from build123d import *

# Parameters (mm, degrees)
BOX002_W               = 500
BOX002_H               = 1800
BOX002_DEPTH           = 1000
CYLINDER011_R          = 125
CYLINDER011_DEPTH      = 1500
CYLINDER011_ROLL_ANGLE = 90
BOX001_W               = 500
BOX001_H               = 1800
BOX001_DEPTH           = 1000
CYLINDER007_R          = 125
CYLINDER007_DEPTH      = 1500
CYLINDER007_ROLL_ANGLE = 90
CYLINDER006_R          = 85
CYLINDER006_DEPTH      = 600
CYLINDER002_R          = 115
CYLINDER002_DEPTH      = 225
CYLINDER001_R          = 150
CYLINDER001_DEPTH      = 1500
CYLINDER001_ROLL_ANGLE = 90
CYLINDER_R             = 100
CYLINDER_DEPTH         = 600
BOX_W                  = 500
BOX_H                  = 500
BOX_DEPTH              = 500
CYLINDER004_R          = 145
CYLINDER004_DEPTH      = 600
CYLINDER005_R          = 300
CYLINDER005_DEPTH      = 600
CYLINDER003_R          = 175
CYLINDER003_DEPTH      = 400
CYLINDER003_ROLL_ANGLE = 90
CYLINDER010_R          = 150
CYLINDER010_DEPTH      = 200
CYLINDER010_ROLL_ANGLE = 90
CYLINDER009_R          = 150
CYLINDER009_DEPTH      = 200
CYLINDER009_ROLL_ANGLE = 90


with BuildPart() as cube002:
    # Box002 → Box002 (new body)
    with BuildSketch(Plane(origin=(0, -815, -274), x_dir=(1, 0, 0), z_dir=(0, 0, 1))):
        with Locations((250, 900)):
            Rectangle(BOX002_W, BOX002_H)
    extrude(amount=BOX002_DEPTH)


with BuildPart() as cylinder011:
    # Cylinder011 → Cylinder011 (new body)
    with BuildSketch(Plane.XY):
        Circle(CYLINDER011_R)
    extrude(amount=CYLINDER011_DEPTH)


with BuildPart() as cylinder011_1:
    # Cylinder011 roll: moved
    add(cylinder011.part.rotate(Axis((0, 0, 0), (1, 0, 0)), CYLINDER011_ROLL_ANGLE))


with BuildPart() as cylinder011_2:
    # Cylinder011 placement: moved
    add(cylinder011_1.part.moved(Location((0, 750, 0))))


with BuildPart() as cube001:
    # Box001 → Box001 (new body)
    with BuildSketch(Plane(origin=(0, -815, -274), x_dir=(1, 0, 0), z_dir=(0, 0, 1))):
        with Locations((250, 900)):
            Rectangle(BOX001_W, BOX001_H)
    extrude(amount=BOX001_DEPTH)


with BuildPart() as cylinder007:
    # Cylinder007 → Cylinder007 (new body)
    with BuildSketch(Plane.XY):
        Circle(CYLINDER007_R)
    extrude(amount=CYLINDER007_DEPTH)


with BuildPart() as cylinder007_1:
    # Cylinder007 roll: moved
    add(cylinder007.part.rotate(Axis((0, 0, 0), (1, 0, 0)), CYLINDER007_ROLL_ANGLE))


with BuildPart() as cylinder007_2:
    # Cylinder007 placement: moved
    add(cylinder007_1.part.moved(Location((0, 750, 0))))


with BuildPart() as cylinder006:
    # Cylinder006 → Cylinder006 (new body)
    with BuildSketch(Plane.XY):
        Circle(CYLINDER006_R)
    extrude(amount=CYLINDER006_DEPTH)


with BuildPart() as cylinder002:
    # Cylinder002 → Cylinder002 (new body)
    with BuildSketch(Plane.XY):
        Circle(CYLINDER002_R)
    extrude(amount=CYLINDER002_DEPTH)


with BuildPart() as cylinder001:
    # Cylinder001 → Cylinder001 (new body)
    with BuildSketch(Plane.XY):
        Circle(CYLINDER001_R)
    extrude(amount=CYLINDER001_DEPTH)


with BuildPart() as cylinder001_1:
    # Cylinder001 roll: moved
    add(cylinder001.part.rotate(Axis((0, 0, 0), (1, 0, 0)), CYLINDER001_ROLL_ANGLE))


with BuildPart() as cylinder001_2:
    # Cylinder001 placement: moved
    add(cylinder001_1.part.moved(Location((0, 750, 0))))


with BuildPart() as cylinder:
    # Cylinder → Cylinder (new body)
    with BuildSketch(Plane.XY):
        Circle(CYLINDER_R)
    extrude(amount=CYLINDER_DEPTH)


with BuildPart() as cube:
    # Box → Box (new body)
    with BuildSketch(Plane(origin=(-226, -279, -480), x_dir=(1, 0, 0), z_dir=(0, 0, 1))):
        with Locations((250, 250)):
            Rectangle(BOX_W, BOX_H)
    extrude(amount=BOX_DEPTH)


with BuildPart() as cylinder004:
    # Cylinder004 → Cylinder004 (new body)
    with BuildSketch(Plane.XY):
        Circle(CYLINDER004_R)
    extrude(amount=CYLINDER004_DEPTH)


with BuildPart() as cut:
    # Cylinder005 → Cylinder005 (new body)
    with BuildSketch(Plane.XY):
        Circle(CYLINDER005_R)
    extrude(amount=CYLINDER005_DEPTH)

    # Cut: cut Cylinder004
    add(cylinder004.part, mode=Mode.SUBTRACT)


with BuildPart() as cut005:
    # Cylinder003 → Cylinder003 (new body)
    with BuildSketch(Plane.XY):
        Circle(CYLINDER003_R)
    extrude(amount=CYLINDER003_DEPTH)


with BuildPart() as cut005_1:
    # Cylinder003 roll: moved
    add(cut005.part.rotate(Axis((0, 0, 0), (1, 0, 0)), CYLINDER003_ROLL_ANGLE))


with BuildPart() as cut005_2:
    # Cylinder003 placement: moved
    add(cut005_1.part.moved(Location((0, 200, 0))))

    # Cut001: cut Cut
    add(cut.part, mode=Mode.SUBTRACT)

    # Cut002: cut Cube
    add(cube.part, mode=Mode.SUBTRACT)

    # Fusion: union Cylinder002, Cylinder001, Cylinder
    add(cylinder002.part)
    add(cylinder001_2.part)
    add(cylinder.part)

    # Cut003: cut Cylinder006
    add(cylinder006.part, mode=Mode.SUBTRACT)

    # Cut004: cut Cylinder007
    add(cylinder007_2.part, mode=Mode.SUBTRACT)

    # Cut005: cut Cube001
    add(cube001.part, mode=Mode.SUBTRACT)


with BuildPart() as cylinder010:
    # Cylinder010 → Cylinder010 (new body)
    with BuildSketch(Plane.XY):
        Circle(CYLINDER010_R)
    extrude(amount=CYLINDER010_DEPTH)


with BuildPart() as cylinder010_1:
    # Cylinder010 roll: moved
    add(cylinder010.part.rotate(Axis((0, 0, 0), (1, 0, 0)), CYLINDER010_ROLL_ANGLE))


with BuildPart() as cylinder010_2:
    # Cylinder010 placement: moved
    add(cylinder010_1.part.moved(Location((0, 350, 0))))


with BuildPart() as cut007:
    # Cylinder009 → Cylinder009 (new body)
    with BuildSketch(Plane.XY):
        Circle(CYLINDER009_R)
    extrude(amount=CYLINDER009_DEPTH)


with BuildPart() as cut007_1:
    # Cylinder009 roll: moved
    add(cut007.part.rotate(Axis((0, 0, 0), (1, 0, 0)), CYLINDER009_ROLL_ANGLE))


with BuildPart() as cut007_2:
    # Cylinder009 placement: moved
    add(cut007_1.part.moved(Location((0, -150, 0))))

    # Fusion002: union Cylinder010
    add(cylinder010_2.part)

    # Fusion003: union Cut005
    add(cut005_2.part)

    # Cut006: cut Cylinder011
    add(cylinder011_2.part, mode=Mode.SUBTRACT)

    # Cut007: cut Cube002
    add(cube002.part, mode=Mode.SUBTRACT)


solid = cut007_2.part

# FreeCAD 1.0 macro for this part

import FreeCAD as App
import Part
import Sketcher
from FreeCAD import Vector


def add_polygon(sketch, points):
    """Adds a closed chain of lines whose ends are joined by coincident constraints."""
    first, n = sketch.GeometryCount, len(points)
    for a, b in zip(points, points[1:] + points[:1]):
        sketch.addGeometry(Part.LineSegment(App.Vector(*a, 0), App.Vector(*b, 0)), False)
    for i in range(n):
        sketch.addConstraint(Sketcher.Constraint("Coincident", first + i, 2, first + (i + 1) % n, 1))

doc = App.newDocument("Part")
params = doc.addObject("Spreadsheet::Sheet", "Params")
for row, (alias, value) in enumerate([
    ("sketch1_width", "500 mm"),
    ("sketch1_height", "1800 mm"),
    ("pad1_length", "1000 mm"),
    ("sketch2_diameter", "250 mm"),
    ("pad2_length", "1500 mm"),
    ("sketch3_width", "500 mm"),
    ("sketch3_height", "1800 mm"),
    ("pad3_length", "1000 mm"),
    ("sketch4_diameter", "250 mm"),
    ("pad4_length", "1500 mm"),
    ("sketch5_diameter", "170 mm"),
    ("pad5_length", "600 mm"),
    ("sketch6_diameter", "230 mm"),
    ("pad6_length", "225 mm"),
    ("sketch7_diameter", "300 mm"),
    ("pad7_length", "1500 mm"),
    ("sketch8_diameter", "200 mm"),
    ("pad8_length", "600 mm"),
    ("sketch9_width", "500 mm"),
    ("pad9_length", "500 mm"),
    ("sketch10_diameter", "290 mm"),
    ("pad10_length", "600 mm"),
    ("sketch11_diameter", "600 mm"),
    ("pad11_length", "600 mm"),
    ("sketch12_diameter", "350 mm"),
    ("pad12_length", "400 mm"),
    ("sketch13_diameter", "300 mm"),
    ("pad13_length", "200 mm"),
    ("sketch14_diameter", "300 mm"),
    ("pad14_length", "200 mm"),
], start=1):
    params.set(f"A{row}", alias)
    params.set(f"B{row}", "=" + value)
    params.setAlias(f"B{row}", alias)

body = doc.addObject("PartDesign::Body", "Body")

# Sketch on XY plane
sketch1 = doc.addObject("Sketcher::SketchObject", "Sketch")
body.addObject(sketch1)
sketch1.AttachmentSupport = (doc.XY_Plane, [""])
sketch1.MapMode = "FlatFace"
sketch1.AttachmentOffset = App.Placement(Vector(0, 0, -274), App.Rotation())
add_polygon(sketch1, [(0, 985), (0, -815), (500, -815), (500, 985)])  # lines 0-3
sketch1.addConstraint([
    Sketcher.Constraint("Vertical", 0),
    Sketcher.Constraint("Horizontal", 1),
    Sketcher.Constraint("Vertical", 2),
    Sketcher.Constraint("Horizontal", 3),
    Sketcher.Constraint("PointOnObject", 0, 2, -2),
    Sketcher.Constraint("DistanceX", 1, 1, 1, 2, 500.0),
    Sketcher.Constraint("DistanceY", 0, 2, 0, 1, 1800.0),
    Sketcher.Constraint("DistanceY", 0, 2, -1, 1, 815.0),
])
sketch1.setExpression("Constraints[9]", "Params.sketch1_width")
sketch1.setExpression("Constraints[10]", "Params.sketch1_height")
pad1 = doc.addObject("PartDesign::Pad", "Pad")
body.addObject(pad1)
pad1.Profile = sketch1
pad1.setExpression("Length", "Params.pad1_length")
body2 = doc.addObject("PartDesign::Body", "Body001")

# Sketch on XY plane
sketch2 = doc.addObject("Sketcher::SketchObject", "Sketch001")
body2.addObject(sketch2)
sketch2.AttachmentSupport = (doc.getObject("XY_Plane001"), [""])
sketch2.MapMode = "FlatFace"
sketch2.addGeometry(Part.Circle(Vector(0, 0, 0), Vector(0, 0, 1), 125), False)
sketch2.addConstraint([
    Sketcher.Constraint("Coincident", 0, 3, -1, 1),
    Sketcher.Constraint("Diameter", 0, 250.0),
])
sketch2.setExpression("Constraints[1]", "Params.sketch2_diameter")
pad2 = doc.addObject("PartDesign::Pad", "Pad001")
body2.addObject(pad2)
pad2.Profile = sketch2
pad2.setExpression("Length", "Params.pad2_length")
body3 = doc.addObject("PartDesign::Body", "Body002")
doc.recompute()

body2.Placement = App.Placement(Vector(0, 0, 0), App.Rotation(Vector(1, 0, 0), 90))
boolean = doc.addObject("PartDesign::Boolean", "Boolean")
body3.addObject(boolean)
boolean.Type = "Fuse"
boolean.addObjects([body2])
body4 = doc.addObject("PartDesign::Body", "Body003")
doc.recompute()

body3.Placement = App.Placement(Vector(0, 750, 0), App.Rotation(Vector(0, 0, 1), 0))
boolean2 = doc.addObject("PartDesign::Boolean", "Boolean001")
body4.addObject(boolean2)
boolean2.Type = "Fuse"
boolean2.addObjects([body3])
body5 = doc.addObject("PartDesign::Body", "Body004")

# Sketch on XY plane
sketch3 = doc.addObject("Sketcher::SketchObject", "Sketch002")
body5.addObject(sketch3)
sketch3.AttachmentSupport = (doc.getObject("XY_Plane004"), [""])
sketch3.MapMode = "FlatFace"
sketch3.AttachmentOffset = App.Placement(Vector(0, 0, -274), App.Rotation())
add_polygon(sketch3, [(0, 985), (0, -815), (500, -815), (500, 985)])  # lines 0-3
sketch3.addConstraint([
    Sketcher.Constraint("Vertical", 0),
    Sketcher.Constraint("Horizontal", 1),
    Sketcher.Constraint("Vertical", 2),
    Sketcher.Constraint("Horizontal", 3),
    Sketcher.Constraint("PointOnObject", 0, 2, -2),
    Sketcher.Constraint("DistanceX", 1, 1, 1, 2, 500.0),
    Sketcher.Constraint("DistanceY", 0, 2, 0, 1, 1800.0),
    Sketcher.Constraint("DistanceY", 0, 2, -1, 1, 815.0),
])
sketch3.setExpression("Constraints[9]", "Params.sketch3_width")
sketch3.setExpression("Constraints[10]", "Params.sketch3_height")
pad3 = doc.addObject("PartDesign::Pad", "Pad002")
body5.addObject(pad3)
pad3.Profile = sketch3
pad3.setExpression("Length", "Params.pad3_length")
body6 = doc.addObject("PartDesign::Body", "Body005")

# Sketch on XY plane
sketch4 = doc.addObject("Sketcher::SketchObject", "Sketch003")
body6.addObject(sketch4)
sketch4.AttachmentSupport = (doc.getObject("XY_Plane005"), [""])
sketch4.MapMode = "FlatFace"
sketch4.addGeometry(Part.Circle(Vector(0, 0, 0), Vector(0, 0, 1), 125), False)
sketch4.addConstraint([
    Sketcher.Constraint("Coincident", 0, 3, -1, 1),
    Sketcher.Constraint("Diameter", 0, 250.0),
])
sketch4.setExpression("Constraints[1]", "Params.sketch4_diameter")
pad4 = doc.addObject("PartDesign::Pad", "Pad003")
body6.addObject(pad4)
pad4.Profile = sketch4
pad4.setExpression("Length", "Params.pad4_length")
body7 = doc.addObject("PartDesign::Body", "Body006")
doc.recompute()

body6.Placement = App.Placement(Vector(0, 0, 0), App.Rotation(Vector(1, 0, 0), 90))
boolean3 = doc.addObject("PartDesign::Boolean", "Boolean002")
body7.addObject(boolean3)
boolean3.Type = "Fuse"
boolean3.addObjects([body6])
body8 = doc.addObject("PartDesign::Body", "Body007")
doc.recompute()

body7.Placement = App.Placement(Vector(0, 750, 0), App.Rotation(Vector(0, 0, 1), 0))
boolean4 = doc.addObject("PartDesign::Boolean", "Boolean003")
body8.addObject(boolean4)
boolean4.Type = "Fuse"
boolean4.addObjects([body7])
body9 = doc.addObject("PartDesign::Body", "Body008")

# Sketch on XY plane
sketch5 = doc.addObject("Sketcher::SketchObject", "Sketch004")
body9.addObject(sketch5)
sketch5.AttachmentSupport = (doc.getObject("XY_Plane008"), [""])
sketch5.MapMode = "FlatFace"
sketch5.addGeometry(Part.Circle(Vector(0, 0, 0), Vector(0, 0, 1), 85), False)
sketch5.addConstraint([
    Sketcher.Constraint("Coincident", 0, 3, -1, 1),
    Sketcher.Constraint("Diameter", 0, 170.0),
])
sketch5.setExpression("Constraints[1]", "Params.sketch5_diameter")
pad5 = doc.addObject("PartDesign::Pad", "Pad004")
body9.addObject(pad5)
pad5.Profile = sketch5
pad5.setExpression("Length", "Params.pad5_length")
body10 = doc.addObject("PartDesign::Body", "Body009")

# Sketch on XY plane
sketch6 = doc.addObject("Sketcher::SketchObject", "Sketch005")
body10.addObject(sketch6)
sketch6.AttachmentSupport = (doc.getObject("XY_Plane009"), [""])
sketch6.MapMode = "FlatFace"
sketch6.addGeometry(Part.Circle(Vector(0, 0, 0), Vector(0, 0, 1), 115), False)
sketch6.addConstraint([
    Sketcher.Constraint("Coincident", 0, 3, -1, 1),
    Sketcher.Constraint("Diameter", 0, 230.0),
])
sketch6.setExpression("Constraints[1]", "Params.sketch6_diameter")
pad6 = doc.addObject("PartDesign::Pad", "Pad005")
body10.addObject(pad6)
pad6.Profile = sketch6
pad6.setExpression("Length", "Params.pad6_length")
body11 = doc.addObject("PartDesign::Body", "Body010")

# Sketch on XY plane
sketch7 = doc.addObject("Sketcher::SketchObject", "Sketch006")
body11.addObject(sketch7)
sketch7.AttachmentSupport = (doc.getObject("XY_Plane010"), [""])
sketch7.MapMode = "FlatFace"
sketch7.addGeometry(Part.Circle(Vector(0, 0, 0), Vector(0, 0, 1), 150), False)
sketch7.addConstraint([
    Sketcher.Constraint("Coincident", 0, 3, -1, 1),
    Sketcher.Constraint("Diameter", 0, 300.0),
])
sketch7.setExpression("Constraints[1]", "Params.sketch7_diameter")
pad7 = doc.addObject("PartDesign::Pad", "Pad006")
body11.addObject(pad7)
pad7.Profile = sketch7
pad7.setExpression("Length", "Params.pad7_length")
body12 = doc.addObject("PartDesign::Body", "Body011")
doc.recompute()

body11.Placement = App.Placement(Vector(0, 0, 0), App.Rotation(Vector(1, 0, 0), 90))
boolean5 = doc.addObject("PartDesign::Boolean", "Boolean004")
body12.addObject(boolean5)
boolean5.Type = "Fuse"
boolean5.addObjects([body11])
body13 = doc.addObject("PartDesign::Body", "Body012")
doc.recompute()

body12.Placement = App.Placement(Vector(0, 750, 0), App.Rotation(Vector(0, 0, 1), 0))
boolean6 = doc.addObject("PartDesign::Boolean", "Boolean005")
body13.addObject(boolean6)
boolean6.Type = "Fuse"
boolean6.addObjects([body12])
body14 = doc.addObject("PartDesign::Body", "Body013")

# Sketch on XY plane
sketch8 = doc.addObject("Sketcher::SketchObject", "Sketch007")
body14.addObject(sketch8)
sketch8.AttachmentSupport = (doc.getObject("XY_Plane013"), [""])
sketch8.MapMode = "FlatFace"
sketch8.addGeometry(Part.Circle(Vector(0, 0, 0), Vector(0, 0, 1), 100), False)
sketch8.addConstraint([
    Sketcher.Constraint("Coincident", 0, 3, -1, 1),
    Sketcher.Constraint("Diameter", 0, 200.0),
])
sketch8.setExpression("Constraints[1]", "Params.sketch8_diameter")
pad8 = doc.addObject("PartDesign::Pad", "Pad007")
body14.addObject(pad8)
pad8.Profile = sketch8
pad8.setExpression("Length", "Params.pad8_length")
body15 = doc.addObject("PartDesign::Body", "Body014")

# Sketch on XY plane
sketch9 = doc.addObject("Sketcher::SketchObject", "Sketch008")
body15.addObject(sketch9)
sketch9.AttachmentSupport = (doc.getObject("XY_Plane014"), [""])
sketch9.MapMode = "FlatFace"
sketch9.AttachmentOffset = App.Placement(Vector(0, 0, -480), App.Rotation())
add_polygon(sketch9, [(-226, 221), (-226, -279), (274, -279), (274, 221)])  # lines 0-3
sketch9.addConstraint([
    Sketcher.Constraint("Vertical", 0),
    Sketcher.Constraint("Horizontal", 1),
    Sketcher.Constraint("Vertical", 2),
    Sketcher.Constraint("Horizontal", 3),
    Sketcher.Constraint("Equal", 3, 0),
    Sketcher.Constraint("DistanceX", 1, 1, 1, 2, 500.0),
    Sketcher.Constraint("DistanceX", 0, 2, -1, 1, 226.0),
    Sketcher.Constraint("DistanceY", 0, 2, -1, 1, 279.0),
])
sketch9.setExpression("Constraints[9]", "Params.sketch9_width")
pad9 = doc.addObject("PartDesign::Pad", "Pad008")
body15.addObject(pad9)
pad9.Profile = sketch9
pad9.setExpression("Length", "Params.pad9_length")
body16 = doc.addObject("PartDesign::Body", "Body015")

# Sketch on XY plane
sketch10 = doc.addObject("Sketcher::SketchObject", "Sketch009")
body16.addObject(sketch10)
sketch10.AttachmentSupport = (doc.getObject("XY_Plane015"), [""])
sketch10.MapMode = "FlatFace"
sketch10.addGeometry(Part.Circle(Vector(0, 0, 0), Vector(0, 0, 1), 145), False)
sketch10.addConstraint([
    Sketcher.Constraint("Coincident", 0, 3, -1, 1),
    Sketcher.Constraint("Diameter", 0, 290.0),
])
sketch10.setExpression("Constraints[1]", "Params.sketch10_diameter")
pad10 = doc.addObject("PartDesign::Pad", "Pad009")
body16.addObject(pad10)
pad10.Profile = sketch10
pad10.setExpression("Length", "Params.pad10_length")
body17 = doc.addObject("PartDesign::Body", "Body016")

# Sketch on XY plane
sketch11 = doc.addObject("Sketcher::SketchObject", "Sketch010")
body17.addObject(sketch11)
sketch11.AttachmentSupport = (doc.getObject("XY_Plane016"), [""])
sketch11.MapMode = "FlatFace"
sketch11.addGeometry(Part.Circle(Vector(0, 0, 0), Vector(0, 0, 1), 300), False)
sketch11.addConstraint([
    Sketcher.Constraint("Coincident", 0, 3, -1, 1),
    Sketcher.Constraint("Diameter", 0, 600.0),
])
sketch11.setExpression("Constraints[1]", "Params.sketch11_diameter")
pad11 = doc.addObject("PartDesign::Pad", "Pad010")
body17.addObject(pad11)
pad11.Profile = sketch11
pad11.setExpression("Length", "Params.pad11_length")
doc.recompute()

boolean7 = doc.addObject("PartDesign::Boolean", "Boolean006")
body17.addObject(boolean7)
boolean7.Type = "Cut"
boolean7.addObjects([body16])
body18 = doc.addObject("PartDesign::Body", "Body017")

# Sketch on XY plane
sketch12 = doc.addObject("Sketcher::SketchObject", "Sketch011")
body18.addObject(sketch12)
sketch12.AttachmentSupport = (doc.getObject("XY_Plane017"), [""])
sketch12.MapMode = "FlatFace"
sketch12.addGeometry(Part.Circle(Vector(0, 0, 0), Vector(0, 0, 1), 175), False)
sketch12.addConstraint([
    Sketcher.Constraint("Coincident", 0, 3, -1, 1),
    Sketcher.Constraint("Diameter", 0, 350.0),
])
sketch12.setExpression("Constraints[1]", "Params.sketch12_diameter")
pad12 = doc.addObject("PartDesign::Pad", "Pad011")
body18.addObject(pad12)
pad12.Profile = sketch12
pad12.setExpression("Length", "Params.pad12_length")
body19 = doc.addObject("PartDesign::Body", "Body018")
doc.recompute()

body18.Placement = App.Placement(Vector(0, 0, 0), App.Rotation(Vector(1, 0, 0), 90))
boolean8 = doc.addObject("PartDesign::Boolean", "Boolean007")
body19.addObject(boolean8)
boolean8.Type = "Fuse"
boolean8.addObjects([body18])
body20 = doc.addObject("PartDesign::Body", "Body019")
doc.recompute()

body19.Placement = App.Placement(Vector(0, 200, 0), App.Rotation(Vector(0, 0, 1), 0))
boolean9 = doc.addObject("PartDesign::Boolean", "Boolean008")
body20.addObject(boolean9)
boolean9.Type = "Fuse"
boolean9.addObjects([body19])
doc.recompute()

boolean10 = doc.addObject("PartDesign::Boolean", "Boolean009")
body20.addObject(boolean10)
boolean10.Type = "Cut"
boolean10.addObjects([body17])
doc.recompute()

boolean11 = doc.addObject("PartDesign::Boolean", "Boolean010")
body20.addObject(boolean11)
boolean11.Type = "Cut"
boolean11.addObjects([body15])
doc.recompute()

boolean12 = doc.addObject("PartDesign::Boolean", "Boolean011")
body20.addObject(boolean12)
boolean12.Type = "Fuse"
boolean12.addObjects([body10])
doc.recompute()

boolean13 = doc.addObject("PartDesign::Boolean", "Boolean012")
body20.addObject(boolean13)
boolean13.Type = "Fuse"
boolean13.addObjects([body13])
doc.recompute()

boolean14 = doc.addObject("PartDesign::Boolean", "Boolean013")
body20.addObject(boolean14)
boolean14.Type = "Fuse"
boolean14.addObjects([body14])
doc.recompute()

boolean15 = doc.addObject("PartDesign::Boolean", "Boolean014")
body20.addObject(boolean15)
boolean15.Type = "Cut"
boolean15.addObjects([body9])
doc.recompute()

boolean16 = doc.addObject("PartDesign::Boolean", "Boolean015")
body20.addObject(boolean16)
boolean16.Type = "Cut"
boolean16.addObjects([body8])
doc.recompute()

boolean17 = doc.addObject("PartDesign::Boolean", "Boolean016")
body20.addObject(boolean17)
boolean17.Type = "Cut"
boolean17.addObjects([body5])
body21 = doc.addObject("PartDesign::Body", "Body020")

# Sketch on XY plane
sketch13 = doc.addObject("Sketcher::SketchObject", "Sketch012")
body21.addObject(sketch13)
sketch13.AttachmentSupport = (doc.getObject("XY_Plane020"), [""])
sketch13.MapMode = "FlatFace"
sketch13.addGeometry(Part.Circle(Vector(0, 0, 0), Vector(0, 0, 1), 150), False)
sketch13.addConstraint([
    Sketcher.Constraint("Coincident", 0, 3, -1, 1),
    Sketcher.Constraint("Diameter", 0, 300.0),
])
sketch13.setExpression("Constraints[1]", "Params.sketch13_diameter")
pad13 = doc.addObject("PartDesign::Pad", "Pad012")
body21.addObject(pad13)
pad13.Profile = sketch13
pad13.setExpression("Length", "Params.pad13_length")
body22 = doc.addObject("PartDesign::Body", "Body021")
doc.recompute()

body21.Placement = App.Placement(Vector(0, 0, 0), App.Rotation(Vector(1, 0, 0), 90))
boolean18 = doc.addObject("PartDesign::Boolean", "Boolean017")
body22.addObject(boolean18)
boolean18.Type = "Fuse"
boolean18.addObjects([body21])
body23 = doc.addObject("PartDesign::Body", "Body022")
doc.recompute()

body22.Placement = App.Placement(Vector(0, 350, 0), App.Rotation(Vector(0, 0, 1), 0))
boolean19 = doc.addObject("PartDesign::Boolean", "Boolean018")
body23.addObject(boolean19)
boolean19.Type = "Fuse"
boolean19.addObjects([body22])
body24 = doc.addObject("PartDesign::Body", "Body023")

# Sketch on XY plane
sketch14 = doc.addObject("Sketcher::SketchObject", "Sketch013")
body24.addObject(sketch14)
sketch14.AttachmentSupport = (doc.getObject("XY_Plane023"), [""])
sketch14.MapMode = "FlatFace"
sketch14.addGeometry(Part.Circle(Vector(0, 0, 0), Vector(0, 0, 1), 150), False)
sketch14.addConstraint([
    Sketcher.Constraint("Coincident", 0, 3, -1, 1),
    Sketcher.Constraint("Diameter", 0, 300.0),
])
sketch14.setExpression("Constraints[1]", "Params.sketch14_diameter")
pad14 = doc.addObject("PartDesign::Pad", "Pad013")
body24.addObject(pad14)
pad14.Profile = sketch14
pad14.setExpression("Length", "Params.pad14_length")
body25 = doc.addObject("PartDesign::Body", "Body024")
doc.recompute()

body24.Placement = App.Placement(Vector(0, 0, 0), App.Rotation(Vector(1, 0, 0), 90))
boolean20 = doc.addObject("PartDesign::Boolean", "Boolean019")
body25.addObject(boolean20)
boolean20.Type = "Fuse"
boolean20.addObjects([body24])
body26 = doc.addObject("PartDesign::Body", "Body025")
body26.AllowCompound = True
doc.recompute()

body25.Placement = App.Placement(Vector(0, -150, 0), App.Rotation(Vector(0, 0, 1), 0))
boolean21 = doc.addObject("PartDesign::Boolean", "Boolean020")
body26.addObject(boolean21)
boolean21.Type = "Fuse"
boolean21.addObjects([body25])
doc.recompute()

boolean22 = doc.addObject("PartDesign::Boolean", "Boolean021")
body26.addObject(boolean22)
boolean22.Type = "Fuse"
boolean22.addObjects([body23])
doc.recompute()

boolean23 = doc.addObject("PartDesign::Boolean", "Boolean022")
body26.addObject(boolean23)
boolean23.Type = "Fuse"
boolean23.addObjects([body20])
doc.recompute()

boolean24 = doc.addObject("PartDesign::Boolean", "Boolean023")
body26.addObject(boolean24)
boolean24.Type = "Cut"
boolean24.addObjects([body4])
doc.recompute()

boolean25 = doc.addObject("PartDesign::Boolean", "Boolean024")
body26.addObject(boolean25)
boolean25.Type = "Cut"
boolean25.addObjects([body])

doc.recompute()
